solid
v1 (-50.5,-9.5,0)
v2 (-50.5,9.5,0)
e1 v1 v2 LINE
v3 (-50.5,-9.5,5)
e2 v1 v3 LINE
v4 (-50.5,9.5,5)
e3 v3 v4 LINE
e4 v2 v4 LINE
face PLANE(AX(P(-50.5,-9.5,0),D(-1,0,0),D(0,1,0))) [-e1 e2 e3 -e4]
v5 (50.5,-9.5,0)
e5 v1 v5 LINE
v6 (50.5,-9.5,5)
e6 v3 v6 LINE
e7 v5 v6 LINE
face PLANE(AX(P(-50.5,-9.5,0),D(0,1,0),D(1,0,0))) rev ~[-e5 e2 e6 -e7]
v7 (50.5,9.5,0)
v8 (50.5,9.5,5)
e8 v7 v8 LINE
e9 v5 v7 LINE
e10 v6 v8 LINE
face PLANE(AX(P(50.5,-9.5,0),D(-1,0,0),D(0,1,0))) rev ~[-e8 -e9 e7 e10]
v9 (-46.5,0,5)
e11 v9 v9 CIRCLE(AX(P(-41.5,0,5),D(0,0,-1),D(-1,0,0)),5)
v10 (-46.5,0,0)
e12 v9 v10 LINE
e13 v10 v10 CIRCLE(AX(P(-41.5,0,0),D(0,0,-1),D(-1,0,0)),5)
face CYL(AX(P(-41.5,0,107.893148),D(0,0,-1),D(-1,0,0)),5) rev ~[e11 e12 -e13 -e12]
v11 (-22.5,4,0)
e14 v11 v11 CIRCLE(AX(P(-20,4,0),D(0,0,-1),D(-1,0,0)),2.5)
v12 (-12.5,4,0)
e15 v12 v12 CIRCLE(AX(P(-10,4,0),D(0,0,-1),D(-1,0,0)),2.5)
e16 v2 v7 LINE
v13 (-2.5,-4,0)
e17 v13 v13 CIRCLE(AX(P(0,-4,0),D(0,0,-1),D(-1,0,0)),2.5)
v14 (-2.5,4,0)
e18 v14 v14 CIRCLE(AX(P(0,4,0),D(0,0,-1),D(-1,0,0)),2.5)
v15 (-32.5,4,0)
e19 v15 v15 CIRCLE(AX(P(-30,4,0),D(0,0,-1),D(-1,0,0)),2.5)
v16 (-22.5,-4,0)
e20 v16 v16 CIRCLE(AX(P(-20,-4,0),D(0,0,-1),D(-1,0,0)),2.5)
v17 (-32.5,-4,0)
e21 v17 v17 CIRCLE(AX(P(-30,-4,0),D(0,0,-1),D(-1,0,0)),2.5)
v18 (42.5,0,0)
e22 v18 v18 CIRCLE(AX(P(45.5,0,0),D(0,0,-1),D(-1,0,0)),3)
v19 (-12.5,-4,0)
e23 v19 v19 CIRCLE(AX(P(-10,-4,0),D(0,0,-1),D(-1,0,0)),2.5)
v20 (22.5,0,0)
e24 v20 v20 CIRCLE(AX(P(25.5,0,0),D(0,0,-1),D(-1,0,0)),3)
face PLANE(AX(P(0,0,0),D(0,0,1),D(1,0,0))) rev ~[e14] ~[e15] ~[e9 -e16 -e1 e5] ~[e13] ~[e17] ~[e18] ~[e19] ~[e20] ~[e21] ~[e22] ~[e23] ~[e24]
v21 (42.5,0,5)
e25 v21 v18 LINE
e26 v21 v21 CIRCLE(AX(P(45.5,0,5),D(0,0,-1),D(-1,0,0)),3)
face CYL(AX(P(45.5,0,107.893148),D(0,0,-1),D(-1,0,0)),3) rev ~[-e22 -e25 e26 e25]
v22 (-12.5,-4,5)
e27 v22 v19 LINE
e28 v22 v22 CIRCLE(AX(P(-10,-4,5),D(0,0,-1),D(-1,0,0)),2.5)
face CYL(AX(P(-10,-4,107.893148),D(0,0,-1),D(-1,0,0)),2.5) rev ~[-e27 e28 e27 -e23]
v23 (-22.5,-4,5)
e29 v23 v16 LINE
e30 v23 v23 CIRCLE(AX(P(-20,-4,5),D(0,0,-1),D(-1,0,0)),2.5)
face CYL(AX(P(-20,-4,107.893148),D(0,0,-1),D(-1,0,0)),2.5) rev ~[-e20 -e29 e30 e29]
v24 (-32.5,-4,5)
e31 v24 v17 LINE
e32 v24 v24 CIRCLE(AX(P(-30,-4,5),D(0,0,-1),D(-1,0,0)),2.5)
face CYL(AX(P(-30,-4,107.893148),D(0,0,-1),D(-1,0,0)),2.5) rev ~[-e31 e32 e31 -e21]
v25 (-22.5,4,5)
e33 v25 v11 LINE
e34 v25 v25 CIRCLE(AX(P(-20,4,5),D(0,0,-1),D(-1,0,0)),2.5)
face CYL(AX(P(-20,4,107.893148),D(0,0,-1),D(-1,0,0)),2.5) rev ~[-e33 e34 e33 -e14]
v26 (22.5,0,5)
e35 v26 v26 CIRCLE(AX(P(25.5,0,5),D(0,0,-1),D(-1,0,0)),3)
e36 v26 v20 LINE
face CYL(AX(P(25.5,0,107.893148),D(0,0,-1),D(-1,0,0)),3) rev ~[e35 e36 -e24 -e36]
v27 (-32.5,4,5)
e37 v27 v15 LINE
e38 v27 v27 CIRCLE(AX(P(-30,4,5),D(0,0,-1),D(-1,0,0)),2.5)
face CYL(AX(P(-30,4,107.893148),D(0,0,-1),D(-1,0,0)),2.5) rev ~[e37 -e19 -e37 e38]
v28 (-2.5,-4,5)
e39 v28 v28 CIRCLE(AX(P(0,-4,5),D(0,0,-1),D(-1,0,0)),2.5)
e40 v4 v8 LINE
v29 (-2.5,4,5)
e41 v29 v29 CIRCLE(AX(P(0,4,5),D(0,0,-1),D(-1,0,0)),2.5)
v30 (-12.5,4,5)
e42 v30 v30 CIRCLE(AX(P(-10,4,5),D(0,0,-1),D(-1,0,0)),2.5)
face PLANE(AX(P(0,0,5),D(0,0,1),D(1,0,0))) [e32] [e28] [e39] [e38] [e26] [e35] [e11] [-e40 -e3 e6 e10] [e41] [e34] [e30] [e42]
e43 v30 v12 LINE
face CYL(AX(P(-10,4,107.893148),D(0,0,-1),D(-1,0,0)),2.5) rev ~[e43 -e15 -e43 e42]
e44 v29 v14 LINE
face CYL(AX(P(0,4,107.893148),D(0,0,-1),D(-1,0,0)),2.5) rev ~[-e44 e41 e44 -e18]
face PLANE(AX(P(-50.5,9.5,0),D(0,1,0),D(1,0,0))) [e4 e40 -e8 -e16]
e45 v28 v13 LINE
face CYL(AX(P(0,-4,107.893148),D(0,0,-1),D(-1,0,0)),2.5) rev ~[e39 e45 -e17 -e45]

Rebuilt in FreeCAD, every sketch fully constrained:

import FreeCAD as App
import Part
import Sketcher

doc = App.newDocument("Part")
params = doc.addObject("Spreadsheet::Sheet", "Params")
for row, (alias, value) in enumerate([
    ("sketch1_width", "101 mm"),
    ("sketch1_height", "19 mm"),
    ("pad1_length", "5 mm"),
    ("sketch2_diameter", "6 mm"),
    ("hole_diameter", "6 mm"),
    ("sketch3_diameter", "10 mm"),
    ("hole2_diameter", "10 mm"),
    ("sketch4_diameter", "5 mm"),
    ("hole3_diameter", "5 mm"),
], start=1):
    params.set(f"A{row}", alias)
    params.set(f"B{row}", "=" + value)
    params.setAlias(f"B{row}", alias)

body = doc.addObject("PartDesign::Body", "Body")

# Sketch on XY plane
sketch1 = body.newObject("Sketcher::SketchObject", "Sketch")
sketch1.AttachmentSupport = (doc.getObject("XY_Plane"), [""])
sketch1.MapMode = "FlatFace"
sketch1.addGeometry(Part.LineSegment(App.Vector(-50, 10, 0), App.Vector(-50, -10, 0)), False)
sketch1.addGeometry(Part.LineSegment(App.Vector(-50, -10, 0), App.Vector(50, -10, 0)), False)
sketch1.addGeometry(Part.LineSegment(App.Vector(50, -10, 0), App.Vector(50, 10, 0)), False)
sketch1.addGeometry(Part.LineSegment(App.Vector(50, 10, 0), App.Vector(-50, 10, 0)), False)
sketch1.addConstraint(Sketcher.Constraint("Coincident", 0, 2, 1, 1))
sketch1.addConstraint(Sketcher.Constraint("Coincident", 1, 2, 2, 1))
sketch1.addConstraint(Sketcher.Constraint("Coincident", 2, 2, 3, 1))
sketch1.addConstraint(Sketcher.Constraint("Coincident", 3, 2, 0, 1))
sketch1.addConstraint(Sketcher.Constraint("Vertical", 0))
sketch1.addConstraint(Sketcher.Constraint("Horizontal", 1))
sketch1.addConstraint(Sketcher.Constraint("Vertical", 2))
sketch1.addConstraint(Sketcher.Constraint("Horizontal", 3))
sketch1.addConstraint(Sketcher.Constraint("Symmetric", 0, 2, 2, 2, -1, 1))
sketch1.addConstraint(Sketcher.Constraint("DistanceX", 1, 1, 1, 2, 101.0))
sketch1.addConstraint(Sketcher.Constraint("DistanceY", 0, 2, 0, 1, 19.0))
sketch1.setExpression("Constraints[9]", "Params.sketch1_width")
sketch1.setExpression("Constraints[10]", "Params.sketch1_height")
pad1 = body.newObject("PartDesign::Pad", "Pad")
pad1.Profile = sketch1
pad1.setExpression("Length", "Params.pad1_length")

# Sketch on XY plane
sketch2 = body.newObject("Sketcher::SketchObject", "Sketch001")
sketch2.AttachmentSupport = (doc.getObject("XY_Plane"), [""])
sketch2.MapMode = "FlatFace"
sketch2.AttachmentOffset = App.Placement(App.Vector(0, 0, 5), App.Rotation())
sketch2.addGeometry(Part.Circle(App.Vector(25.5, 0, 0), App.Vector(0, 0, 1), 3), False)
sketch2.addGeometry(Part.Circle(App.Vector(45.5, 0, 0), App.Vector(0, 0, 1), 3), False)
sketch2.addConstraint(Sketcher.Constraint("Equal", 0, 1))
sketch2.addConstraint(Sketcher.Constraint("PointOnObject", 0, 3, -1))
sketch2.addConstraint(Sketcher.Constraint("PointOnObject", 1, 3, -1))
sketch2.addConstraint(Sketcher.Constraint("Diameter", 0, 6.0))
sketch2.addConstraint(Sketcher.Constraint("DistanceX", 0, 3, 1, 3, 20.0))
sketch2.addConstraint(Sketcher.Constraint("DistanceX", -1, 1, 0, 3, 25.5))
sketch2.setExpression("Constraints[3]", "Params.sketch2_diameter")
doc.recompute()
hole = body.newObject("PartDesign::Hole", "Hole")
hole.Profile = sketch2
hole.ThreadType = "None"
hole.setExpression("Diameter", "Params.hole_diameter")
hole.DepthType = "ThroughAll"

# Sketch on XY plane
sketch3 = body.newObject("Sketcher::SketchObject", "Sketch002")
sketch3.AttachmentSupport = (doc.getObject("XY_Plane"), [""])
sketch3.MapMode = "FlatFace"
sketch3.AttachmentOffset = App.Placement(App.Vector(0, 0, 5), App.Rotation())
sketch3.addGeometry(Part.Circle(App.Vector(-42, 0, 0), App.Vector(0, 0, 1), 5), False)
sketch3.addConstraint(Sketcher.Constraint("PointOnObject", 0, 3, -1))
sketch3.addConstraint(Sketcher.Constraint("Diameter", 0, 10.0))
sketch3.addConstraint(Sketcher.Constraint("DistanceX", 0, 3, -1, 1, 41.5))
sketch3.setExpression("Constraints[1]", "Params.sketch3_diameter")
doc.recompute()
hole2 = body.newObject("PartDesign::Hole", "Hole001")
hole2.Profile = sketch3
hole2.ThreadType = "None"
hole2.setExpression("Diameter", "Params.hole2_diameter")
hole2.DepthType = "ThroughAll"

# Sketch on XY plane
sketch4 = body.newObject("Sketcher::SketchObject", "Sketch003")
sketch4.AttachmentSupport = (doc.getObject("XY_Plane"), [""])
sketch4.MapMode = "FlatFace"
sketch4.AttachmentOffset = App.Placement(App.Vector(0, 0, 5), App.Rotation())
sketch4.addGeometry(Part.Circle(App.Vector(-30, 4, 0), App.Vector(0, 0, 1), 2.5), False)
sketch4.addGeometry(Part.Circle(App.Vector(-20, 4, 0), App.Vector(0, 0, 1), 2.5), False)
sketch4.addGeometry(Part.Circle(App.Vector(-10, 4, 0), App.Vector(0, 0, 1), 2.5), False)
sketch4.addGeometry(Part.Circle(App.Vector(0, 4, 0), App.Vector(0, 0, 1), 2.5), False)
sketch4.addGeometry(Part.Circle(App.Vector(0, -4, 0), App.Vector(0, 0, 1), 2.5), False)
sketch4.addGeometry(Part.Circle(App.Vector(-10, -4, 0), App.Vector(0, 0, 1), 2.5), False)
sketch4.addGeometry(Part.Circle(App.Vector(-20, -4, 0), App.Vector(0, 0, 1), 2.5), False)
sketch4.addGeometry(Part.Circle(App.Vector(-30, -4, 0), App.Vector(0, 0, 1), 2.5), False)
sketch4.addConstraint(Sketcher.Constraint("Equal", 0, 1))
sketch4.addConstraint(Sketcher.Constraint("Equal", 1, 2))
sketch4.addConstraint(Sketcher.Constraint("Equal", 2, 3))
sketch4.addConstraint(Sketcher.Constraint("Equal", 3, 4))
sketch4.addConstraint(Sketcher.Constraint("Equal", 4, 5))
sketch4.addConstraint(Sketcher.Constraint("Equal", 5, 6))
sketch4.addConstraint(Sketcher.Constraint("Equal", 6, 7))
sketch4.addConstraint(Sketcher.Constraint("Symmetric", 3, 3, 4, 3, -1, 1))
sketch4.addConstraint(Sketcher.Constraint("Symmetric", 2, 3, 5, 3, -1))
sketch4.addConstraint(Sketcher.Constraint("Symmetric", 1, 3, 6, 3, -1))
sketch4.addConstraint(Sketcher.Constraint("Symmetric", 0, 3, 7, 3, -1))
sketch4.addConstraint(Sketcher.Constraint("PointOnObject", 3, 3, -2))
sketch4.addConstraint(Sketcher.Constraint("Horizontal", 0, 3, 1, 3))
sketch4.addConstraint(Sketcher.Constraint("Horizontal", 1, 3, 2, 3))
sketch4.addConstraint(Sketcher.Constraint("Horizontal", 2, 3, 3, 3))
sketch4.addConstraint(Sketcher.Constraint("Diameter", 0, 5.0))
sketch4.addConstraint(Sketcher.Constraint("DistanceX", 0, 3, -1, 1, 30.0))
sketch4.addConstraint(Sketcher.Constraint("DistanceY", -1, 1, 0, 3, 4.0))
sketch4.addConstraint(Sketcher.Constraint("DistanceX", 1, 3, -1, 1, 20.0))
sketch4.addConstraint(Sketcher.Constraint("DistanceX", 2, 3, -1, 1, 10.0))
sketch4.setExpression("Constraints[15]", "Params.sketch4_diameter")
doc.recompute()
hole3 = body.newObject("PartDesign::Hole", "Hole002")
hole3.Profile = sketch4
hole3.ThreadType = "None"
hole3.setExpression("Diameter", "Params.hole3_diameter")
hole3.DepthType = "ThroughAll"

doc.recompute()
